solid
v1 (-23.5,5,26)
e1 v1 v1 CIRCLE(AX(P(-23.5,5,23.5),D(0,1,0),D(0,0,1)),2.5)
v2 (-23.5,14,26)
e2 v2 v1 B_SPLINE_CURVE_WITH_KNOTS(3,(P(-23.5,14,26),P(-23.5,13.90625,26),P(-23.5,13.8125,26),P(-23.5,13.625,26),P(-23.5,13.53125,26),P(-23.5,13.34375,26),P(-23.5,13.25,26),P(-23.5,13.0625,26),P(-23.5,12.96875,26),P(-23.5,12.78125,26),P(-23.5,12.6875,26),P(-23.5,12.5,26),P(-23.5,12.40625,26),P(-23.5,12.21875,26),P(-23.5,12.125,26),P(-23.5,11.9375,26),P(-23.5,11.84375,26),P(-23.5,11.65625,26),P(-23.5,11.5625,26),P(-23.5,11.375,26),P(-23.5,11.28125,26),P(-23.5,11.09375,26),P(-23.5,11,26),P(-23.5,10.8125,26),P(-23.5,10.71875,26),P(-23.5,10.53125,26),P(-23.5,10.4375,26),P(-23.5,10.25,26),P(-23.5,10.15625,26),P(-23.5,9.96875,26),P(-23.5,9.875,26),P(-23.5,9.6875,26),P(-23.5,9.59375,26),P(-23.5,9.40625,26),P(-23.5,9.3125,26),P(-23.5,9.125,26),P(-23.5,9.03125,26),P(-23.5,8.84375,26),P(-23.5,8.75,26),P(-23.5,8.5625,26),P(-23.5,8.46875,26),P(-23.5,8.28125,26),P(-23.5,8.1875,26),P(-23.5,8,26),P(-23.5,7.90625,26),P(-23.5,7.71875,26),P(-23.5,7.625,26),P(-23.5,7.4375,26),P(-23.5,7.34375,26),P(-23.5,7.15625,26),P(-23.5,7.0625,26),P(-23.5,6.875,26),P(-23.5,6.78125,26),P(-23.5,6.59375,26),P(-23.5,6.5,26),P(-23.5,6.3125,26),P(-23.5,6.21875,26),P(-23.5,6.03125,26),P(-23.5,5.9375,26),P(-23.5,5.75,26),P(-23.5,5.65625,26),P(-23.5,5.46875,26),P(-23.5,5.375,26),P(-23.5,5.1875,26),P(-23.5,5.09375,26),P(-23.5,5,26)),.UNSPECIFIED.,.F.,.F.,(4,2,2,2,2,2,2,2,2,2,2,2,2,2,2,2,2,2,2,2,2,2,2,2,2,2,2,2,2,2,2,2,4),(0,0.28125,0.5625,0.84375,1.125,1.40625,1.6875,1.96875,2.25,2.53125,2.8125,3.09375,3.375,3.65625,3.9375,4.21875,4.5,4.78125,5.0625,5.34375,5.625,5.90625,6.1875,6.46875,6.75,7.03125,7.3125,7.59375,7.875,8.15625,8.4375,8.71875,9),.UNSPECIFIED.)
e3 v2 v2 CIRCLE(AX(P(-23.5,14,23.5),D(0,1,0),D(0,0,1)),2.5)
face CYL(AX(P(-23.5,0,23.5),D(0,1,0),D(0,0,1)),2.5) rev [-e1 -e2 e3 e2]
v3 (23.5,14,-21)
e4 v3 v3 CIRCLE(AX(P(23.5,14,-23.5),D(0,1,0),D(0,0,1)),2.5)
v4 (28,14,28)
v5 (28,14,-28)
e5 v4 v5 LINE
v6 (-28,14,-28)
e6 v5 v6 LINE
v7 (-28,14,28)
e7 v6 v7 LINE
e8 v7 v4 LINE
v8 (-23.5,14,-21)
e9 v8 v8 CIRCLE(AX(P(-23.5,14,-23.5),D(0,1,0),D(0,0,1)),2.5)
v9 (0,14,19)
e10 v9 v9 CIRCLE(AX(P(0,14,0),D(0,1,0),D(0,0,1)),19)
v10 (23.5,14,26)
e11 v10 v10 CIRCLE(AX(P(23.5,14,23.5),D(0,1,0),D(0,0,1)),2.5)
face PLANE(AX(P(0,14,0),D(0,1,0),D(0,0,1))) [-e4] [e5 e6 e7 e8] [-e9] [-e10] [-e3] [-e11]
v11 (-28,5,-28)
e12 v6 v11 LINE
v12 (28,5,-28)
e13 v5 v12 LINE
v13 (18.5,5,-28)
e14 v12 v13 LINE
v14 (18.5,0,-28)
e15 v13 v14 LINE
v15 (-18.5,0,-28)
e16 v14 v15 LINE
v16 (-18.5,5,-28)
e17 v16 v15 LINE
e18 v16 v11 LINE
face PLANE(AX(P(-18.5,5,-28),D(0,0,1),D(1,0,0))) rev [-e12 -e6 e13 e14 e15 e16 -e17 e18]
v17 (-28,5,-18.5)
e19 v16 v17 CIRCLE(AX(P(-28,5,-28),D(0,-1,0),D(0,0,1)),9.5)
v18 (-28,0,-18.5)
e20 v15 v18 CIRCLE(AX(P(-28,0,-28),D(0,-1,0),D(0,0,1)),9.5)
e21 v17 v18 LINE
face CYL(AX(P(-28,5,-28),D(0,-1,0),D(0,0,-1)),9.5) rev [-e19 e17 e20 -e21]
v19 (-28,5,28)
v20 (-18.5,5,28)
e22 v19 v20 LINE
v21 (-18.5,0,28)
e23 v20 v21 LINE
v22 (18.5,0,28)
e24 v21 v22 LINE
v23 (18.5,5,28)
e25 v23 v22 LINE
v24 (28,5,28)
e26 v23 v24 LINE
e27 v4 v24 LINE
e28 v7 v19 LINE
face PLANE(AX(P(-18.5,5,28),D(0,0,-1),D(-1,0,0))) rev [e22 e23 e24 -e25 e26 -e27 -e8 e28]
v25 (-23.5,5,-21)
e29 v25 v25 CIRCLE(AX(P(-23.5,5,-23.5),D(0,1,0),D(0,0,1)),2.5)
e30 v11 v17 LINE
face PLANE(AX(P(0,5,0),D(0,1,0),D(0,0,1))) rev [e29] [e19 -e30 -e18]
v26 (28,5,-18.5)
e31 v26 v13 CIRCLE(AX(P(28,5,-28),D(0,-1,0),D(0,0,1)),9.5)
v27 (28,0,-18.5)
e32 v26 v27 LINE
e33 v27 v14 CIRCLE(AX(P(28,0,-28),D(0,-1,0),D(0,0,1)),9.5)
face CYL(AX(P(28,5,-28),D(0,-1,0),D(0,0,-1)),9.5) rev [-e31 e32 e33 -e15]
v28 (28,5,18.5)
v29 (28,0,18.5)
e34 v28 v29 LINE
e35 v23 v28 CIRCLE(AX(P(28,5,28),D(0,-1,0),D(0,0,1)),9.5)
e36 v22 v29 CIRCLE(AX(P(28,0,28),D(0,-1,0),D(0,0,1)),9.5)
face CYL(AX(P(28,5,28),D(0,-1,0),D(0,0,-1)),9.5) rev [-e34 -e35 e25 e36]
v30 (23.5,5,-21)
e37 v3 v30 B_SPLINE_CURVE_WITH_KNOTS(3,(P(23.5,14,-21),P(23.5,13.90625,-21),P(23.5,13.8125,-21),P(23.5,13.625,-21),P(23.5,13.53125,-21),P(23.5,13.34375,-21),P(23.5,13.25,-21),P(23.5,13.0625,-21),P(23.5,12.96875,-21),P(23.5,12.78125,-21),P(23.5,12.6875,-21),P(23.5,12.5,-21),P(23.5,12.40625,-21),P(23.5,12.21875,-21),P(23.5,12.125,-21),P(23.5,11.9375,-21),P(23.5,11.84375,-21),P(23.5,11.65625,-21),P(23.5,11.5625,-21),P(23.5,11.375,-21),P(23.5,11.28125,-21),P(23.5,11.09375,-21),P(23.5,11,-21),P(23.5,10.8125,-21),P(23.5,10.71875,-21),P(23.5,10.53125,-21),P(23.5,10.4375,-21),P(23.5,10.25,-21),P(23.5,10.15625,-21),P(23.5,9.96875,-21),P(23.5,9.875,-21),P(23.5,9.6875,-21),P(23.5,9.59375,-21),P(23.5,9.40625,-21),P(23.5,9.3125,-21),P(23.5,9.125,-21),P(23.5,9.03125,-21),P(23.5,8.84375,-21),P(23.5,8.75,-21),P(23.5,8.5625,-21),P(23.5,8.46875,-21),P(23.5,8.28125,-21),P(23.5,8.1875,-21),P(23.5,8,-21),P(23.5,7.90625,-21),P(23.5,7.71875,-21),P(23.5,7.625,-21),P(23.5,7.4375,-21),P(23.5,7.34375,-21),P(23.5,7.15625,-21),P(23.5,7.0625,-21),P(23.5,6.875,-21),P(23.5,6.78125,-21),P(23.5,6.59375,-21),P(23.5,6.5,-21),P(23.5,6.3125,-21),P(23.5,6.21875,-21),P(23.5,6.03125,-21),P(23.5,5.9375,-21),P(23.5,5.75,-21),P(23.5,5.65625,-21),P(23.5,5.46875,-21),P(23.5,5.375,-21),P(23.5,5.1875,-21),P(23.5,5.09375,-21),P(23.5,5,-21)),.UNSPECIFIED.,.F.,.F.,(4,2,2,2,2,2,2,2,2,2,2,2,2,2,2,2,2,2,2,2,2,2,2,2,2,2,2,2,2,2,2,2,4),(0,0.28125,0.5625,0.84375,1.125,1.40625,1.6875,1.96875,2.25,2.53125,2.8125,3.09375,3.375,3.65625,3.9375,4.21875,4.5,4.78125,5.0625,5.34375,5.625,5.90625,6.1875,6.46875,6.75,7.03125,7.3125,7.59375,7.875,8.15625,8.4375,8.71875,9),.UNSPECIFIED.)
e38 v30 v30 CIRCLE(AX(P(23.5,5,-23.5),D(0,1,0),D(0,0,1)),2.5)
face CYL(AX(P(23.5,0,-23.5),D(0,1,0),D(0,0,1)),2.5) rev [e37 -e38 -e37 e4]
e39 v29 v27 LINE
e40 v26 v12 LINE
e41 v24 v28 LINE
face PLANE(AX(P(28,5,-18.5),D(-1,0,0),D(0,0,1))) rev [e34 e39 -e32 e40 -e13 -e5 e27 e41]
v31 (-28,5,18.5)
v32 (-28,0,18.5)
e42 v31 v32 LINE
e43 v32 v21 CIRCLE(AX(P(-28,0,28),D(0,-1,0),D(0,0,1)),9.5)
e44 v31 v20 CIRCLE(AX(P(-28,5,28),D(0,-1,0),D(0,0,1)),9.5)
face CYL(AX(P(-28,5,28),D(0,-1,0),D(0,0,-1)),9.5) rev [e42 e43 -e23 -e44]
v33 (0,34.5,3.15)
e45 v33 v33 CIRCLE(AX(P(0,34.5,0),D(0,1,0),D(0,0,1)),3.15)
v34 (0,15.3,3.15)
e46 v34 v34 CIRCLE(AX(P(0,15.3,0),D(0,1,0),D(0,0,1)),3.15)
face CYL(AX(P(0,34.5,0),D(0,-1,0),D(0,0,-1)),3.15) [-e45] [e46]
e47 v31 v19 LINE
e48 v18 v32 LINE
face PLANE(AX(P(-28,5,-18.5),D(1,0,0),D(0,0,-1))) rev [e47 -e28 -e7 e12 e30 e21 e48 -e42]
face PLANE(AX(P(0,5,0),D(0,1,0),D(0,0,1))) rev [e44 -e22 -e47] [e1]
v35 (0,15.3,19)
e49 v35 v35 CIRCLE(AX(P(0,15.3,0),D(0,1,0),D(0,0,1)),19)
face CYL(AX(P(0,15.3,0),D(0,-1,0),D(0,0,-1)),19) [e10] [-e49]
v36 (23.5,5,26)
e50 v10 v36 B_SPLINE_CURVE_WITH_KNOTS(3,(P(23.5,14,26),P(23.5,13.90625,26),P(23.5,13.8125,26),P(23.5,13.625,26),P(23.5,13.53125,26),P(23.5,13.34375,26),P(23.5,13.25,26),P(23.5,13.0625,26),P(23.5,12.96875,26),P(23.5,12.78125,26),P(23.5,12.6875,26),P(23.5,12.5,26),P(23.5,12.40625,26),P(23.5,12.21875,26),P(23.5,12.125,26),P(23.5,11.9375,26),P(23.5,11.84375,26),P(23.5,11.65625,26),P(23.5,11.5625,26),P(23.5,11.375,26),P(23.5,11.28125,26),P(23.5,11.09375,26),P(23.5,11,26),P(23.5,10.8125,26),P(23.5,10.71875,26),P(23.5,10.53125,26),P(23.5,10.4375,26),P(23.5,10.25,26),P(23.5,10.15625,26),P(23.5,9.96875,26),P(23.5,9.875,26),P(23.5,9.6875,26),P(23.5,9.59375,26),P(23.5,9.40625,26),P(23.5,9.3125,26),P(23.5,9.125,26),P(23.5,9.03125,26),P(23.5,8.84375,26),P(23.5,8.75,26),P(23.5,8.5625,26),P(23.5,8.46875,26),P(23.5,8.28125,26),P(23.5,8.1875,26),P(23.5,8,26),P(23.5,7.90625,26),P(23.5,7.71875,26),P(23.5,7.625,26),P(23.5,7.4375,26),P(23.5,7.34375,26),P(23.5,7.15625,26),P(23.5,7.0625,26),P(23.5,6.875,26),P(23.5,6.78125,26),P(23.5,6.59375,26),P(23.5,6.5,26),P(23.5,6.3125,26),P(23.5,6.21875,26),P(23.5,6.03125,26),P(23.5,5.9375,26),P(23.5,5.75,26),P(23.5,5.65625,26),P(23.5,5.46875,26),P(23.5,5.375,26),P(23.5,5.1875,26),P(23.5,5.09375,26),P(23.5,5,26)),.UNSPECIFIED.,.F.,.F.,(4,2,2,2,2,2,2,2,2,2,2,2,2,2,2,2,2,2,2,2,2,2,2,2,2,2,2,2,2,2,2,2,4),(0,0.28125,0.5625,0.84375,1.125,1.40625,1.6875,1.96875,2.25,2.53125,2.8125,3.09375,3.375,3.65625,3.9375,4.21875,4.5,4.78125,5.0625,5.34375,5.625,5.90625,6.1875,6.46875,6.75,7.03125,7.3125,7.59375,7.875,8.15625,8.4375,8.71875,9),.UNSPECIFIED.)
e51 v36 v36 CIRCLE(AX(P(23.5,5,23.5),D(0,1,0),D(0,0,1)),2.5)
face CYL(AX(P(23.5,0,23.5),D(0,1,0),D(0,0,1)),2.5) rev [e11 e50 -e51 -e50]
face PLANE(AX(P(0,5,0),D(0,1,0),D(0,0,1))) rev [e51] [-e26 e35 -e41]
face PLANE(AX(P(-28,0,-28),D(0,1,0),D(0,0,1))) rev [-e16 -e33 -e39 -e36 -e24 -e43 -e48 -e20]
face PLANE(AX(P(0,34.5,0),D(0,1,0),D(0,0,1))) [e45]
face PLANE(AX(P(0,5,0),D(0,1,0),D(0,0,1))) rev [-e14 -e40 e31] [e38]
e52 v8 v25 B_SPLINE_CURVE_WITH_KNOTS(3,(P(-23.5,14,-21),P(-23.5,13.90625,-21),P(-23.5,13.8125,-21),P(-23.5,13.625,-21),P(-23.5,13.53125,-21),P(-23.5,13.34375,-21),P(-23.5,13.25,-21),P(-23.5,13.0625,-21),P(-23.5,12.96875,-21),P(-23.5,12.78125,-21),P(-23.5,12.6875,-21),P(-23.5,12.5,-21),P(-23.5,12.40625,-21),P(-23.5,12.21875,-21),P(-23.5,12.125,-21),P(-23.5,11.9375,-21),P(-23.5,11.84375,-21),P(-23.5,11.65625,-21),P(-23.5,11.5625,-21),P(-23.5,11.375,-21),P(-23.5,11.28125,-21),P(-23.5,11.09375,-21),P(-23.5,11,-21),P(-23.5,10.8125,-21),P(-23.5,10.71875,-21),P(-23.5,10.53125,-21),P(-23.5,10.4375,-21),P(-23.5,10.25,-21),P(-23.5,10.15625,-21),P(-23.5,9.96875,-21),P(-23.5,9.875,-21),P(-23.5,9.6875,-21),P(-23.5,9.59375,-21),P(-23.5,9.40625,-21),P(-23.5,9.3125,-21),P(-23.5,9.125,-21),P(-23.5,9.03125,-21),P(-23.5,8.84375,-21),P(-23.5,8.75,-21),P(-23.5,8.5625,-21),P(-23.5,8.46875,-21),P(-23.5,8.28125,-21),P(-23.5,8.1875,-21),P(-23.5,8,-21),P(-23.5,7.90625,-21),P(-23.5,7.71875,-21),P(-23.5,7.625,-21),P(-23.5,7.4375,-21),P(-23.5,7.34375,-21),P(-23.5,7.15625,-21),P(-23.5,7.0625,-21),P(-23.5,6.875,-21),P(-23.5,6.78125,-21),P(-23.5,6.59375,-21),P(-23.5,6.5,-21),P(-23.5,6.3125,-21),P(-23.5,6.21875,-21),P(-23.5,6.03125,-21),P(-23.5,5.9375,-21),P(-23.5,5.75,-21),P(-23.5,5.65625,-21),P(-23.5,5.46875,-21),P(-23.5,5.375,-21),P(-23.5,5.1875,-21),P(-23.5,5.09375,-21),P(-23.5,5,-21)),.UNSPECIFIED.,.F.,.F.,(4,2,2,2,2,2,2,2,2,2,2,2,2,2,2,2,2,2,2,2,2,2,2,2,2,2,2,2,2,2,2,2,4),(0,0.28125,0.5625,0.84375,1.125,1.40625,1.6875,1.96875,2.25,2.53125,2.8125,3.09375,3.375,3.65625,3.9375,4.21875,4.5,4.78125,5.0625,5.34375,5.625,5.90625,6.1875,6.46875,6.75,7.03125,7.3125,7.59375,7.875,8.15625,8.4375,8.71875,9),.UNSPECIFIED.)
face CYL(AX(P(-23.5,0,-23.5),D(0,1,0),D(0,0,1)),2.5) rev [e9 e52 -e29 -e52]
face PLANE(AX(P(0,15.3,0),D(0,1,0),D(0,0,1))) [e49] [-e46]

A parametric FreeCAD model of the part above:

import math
import FreeCAD as App
import Part
import Sketcher


def add_polygon(sketch, points):
    """Adds a closed chain of lines whose ends are joined by coincident constraints."""
    first, n = sketch.GeometryCount, len(points)
    for a, b in zip(points, points[1:] + points[:1]):
        sketch.addGeometry(Part.LineSegment(App.Vector(*a, 0), App.Vector(*b, 0)), False)
    for i in range(n):
        sketch.addConstraint(Sketcher.Constraint("Coincident", first + i, 2, first + (i + 1) % n, 1))

doc = App.newDocument("Part")
body = doc.addObject("PartDesign::Body", "Body")

# Sketch on XZ plane
sketch1 = body.newObject("Sketcher::SketchObject", "Sketch")
sketch1.AttachmentSupport = (doc.getObject("XZ_Plane"), [""])
sketch1.MapMode = "FlatFace"
sketch1.addGeometry([
    Part.LineSegment(App.Vector(18, -28, 0), App.Vector(-18, -28, 0)),  # 0
    Part.ArcOfCircle(Part.Circle(App.Vector(-28, -28, 0), App.Vector(0, 0, 1), 10), math.radians(0), math.radians(90)),  # 1
    Part.LineSegment(App.Vector(-28, -18, 0), App.Vector(-28, 18, 0)),  # 2
    Part.ArcOfCircle(Part.Circle(App.Vector(-28, 28, 0), App.Vector(0, 0, 1), 10), math.radians(-90), math.radians(0)),  # 3
    Part.LineSegment(App.Vector(-18, 28, 0), App.Vector(18, 28, 0)),  # 4
    Part.ArcOfCircle(Part.Circle(App.Vector(28, 28, 0), App.Vector(0, 0, 1), 10), math.radians(-180), math.radians(-90)),  # 5
    Part.LineSegment(App.Vector(28, 18, 0), App.Vector(28, -18, 0)),  # 6
    Part.ArcOfCircle(Part.Circle(App.Vector(28, -28, 0), App.Vector(0, 0, 1), 10), math.radians(90), math.radians(180)),  # 7
], False)
sketch1.addConstraint([
    Sketcher.Constraint("Coincident", 0, 2, 1, 1),
    Sketcher.Constraint("Coincident", 1, 2, 2, 1),
    Sketcher.Constraint("Coincident", 2, 2, 3, 1),
    Sketcher.Constraint("Coincident", 3, 2, 4, 1),
    Sketcher.Constraint("Coincident", 4, 2, 5, 1),
    Sketcher.Constraint("Coincident", 5, 2, 6, 1),
    Sketcher.Constraint("Coincident", 6, 2, 7, 1),
    Sketcher.Constraint("Coincident", 7, 2, 0, 1),
    Sketcher.Constraint("Horizontal", 0),
    Sketcher.Constraint("Vertical", 2),
    Sketcher.Constraint("Horizontal", 4),
    Sketcher.Constraint("Vertical", 6),
    Sketcher.Constraint("Equal", 1, 3),
    Sketcher.Constraint("Equal", 3, 5),
    Sketcher.Constraint("Equal", 5, 7),
    Sketcher.Constraint("Symmetric", 1, 3, 5, 3, -1, 1),
    Sketcher.Constraint("Symmetric", 3, 3, 7, 3, -1, 1),
    Sketcher.Constraint("Symmetric", 3, 3, 5, 3, -2),
    Sketcher.Constraint("Horizontal", 7, 3, 0, 2),
    Sketcher.Constraint("Horizontal", 5, 3, 3, 2),
    Sketcher.Constraint("Vertical", 3, 3, 1, 2),
    Sketcher.Constraint("Vertical", 7, 3, 5, 2),
    Sketcher.Constraint("Equal", 4, 2),
    Sketcher.Constraint("Radius", 1, 9.5),
    Sketcher.Constraint("DistanceX", 0, 2, 0, 1, 37.0),
])
pad1 = body.newObject("PartDesign::Pad", "Pad")
pad1.Profile = sketch1
pad1.Length = 5
pad1.Reversed = True

# Sketch on XZ plane
sketch2 = body.newObject("Sketcher::SketchObject", "Sketch001")
sketch2.AttachmentSupport = (doc.getObject("XZ_Plane"), [""])
sketch2.MapMode = "FlatFace"
sketch2.AttachmentOffset = App.Placement(App.Vector(0, 0, -5), App.Rotation())
add_polygon(sketch2, [(-28, -28), (-28, 28), (28, 28), (28, -28)])  # lines 0-3
sketch2.addConstraint([
    Sketcher.Constraint("Vertical", 0),
    Sketcher.Constraint("Horizontal", 1),
    Sketcher.Constraint("Vertical", 2),
    Sketcher.Constraint("Horizontal", 3),
    Sketcher.Constraint("Symmetric", 0, 2, 2, 2, -1, 1),
    Sketcher.Constraint("Equal", 3, 0),
    Sketcher.Constraint("DistanceX", 1, 1, 1, 2, 56.0),
])
pad2 = body.newObject("PartDesign::Pad", "Pad001")
pad2.Profile = sketch2
pad2.Length = 9
pad2.Reversed = True

# Sketch on XZ plane
sketch3 = body.newObject("Sketcher::SketchObject", "Sketch002")
sketch3.AttachmentSupport = (doc.getObject("XZ_Plane"), [""])
sketch3.MapMode = "FlatFace"
sketch3.AttachmentOffset = App.Placement(App.Vector(0, 0, -14), App.Rotation())
sketch3.addGeometry(Part.Circle(App.Vector(0, 0, 0), App.Vector(0, 0, 1), 19), False)
sketch3.addConstraint([
    Sketcher.Constraint("Coincident", 0, 3, -1, 1),
    Sketcher.Constraint("Diameter", 0, 38.0),
])
pad3 = body.newObject("PartDesign::Pad", "Pad002")
pad3.Profile = sketch3
pad3.Length = 1.3
pad3.Reversed = True

# Sketch on XZ plane
sketch4 = body.newObject("Sketcher::SketchObject", "Sketch003")
sketch4.AttachmentSupport = (doc.getObject("XZ_Plane"), [""])
sketch4.MapMode = "FlatFace"
sketch4.AttachmentOffset = App.Placement(App.Vector(0, 0, -14), App.Rotation())
sketch4.addGeometry([
    Part.Circle(App.Vector(-23.5, -23.5, 0), App.Vector(0, 0, 1), 2.5),
    Part.Circle(App.Vector(23.5, -23.5, 0), App.Vector(0, 0, 1), 2.5),
    Part.Circle(App.Vector(23.5, 23.5, 0), App.Vector(0, 0, 1), 2.5),
    Part.Circle(App.Vector(-23.5, 23.5, 0), App.Vector(0, 0, 1), 2.5),
], False)
sketch4.addConstraint([
    Sketcher.Constraint("Equal", 0, 1),
    Sketcher.Constraint("Equal", 1, 2),
    Sketcher.Constraint("Equal", 2, 3),
    Sketcher.Constraint("Symmetric", 0, 3, 2, 3, -1, 1),
    Sketcher.Constraint("Symmetric", 1, 3, 3, 3, -1, 1),
    Sketcher.Constraint("Symmetric", 0, 3, 1, 3, -2),
    Sketcher.Constraint("Diameter", 0, 5.0),
    Sketcher.Constraint("DistanceX", 0, 3, 1, 3, 47.0),
    Sketcher.Constraint("DistanceY", 1, 3, 2, 3, 47.0),
])
pocket1 = body.newObject("PartDesign::Pocket", "Pocket")
pocket1.Profile = sketch4
pocket1.Type = "ThroughAll"
pocket1.Reversed = True

# Sketch on XZ plane
sketch5 = body.newObject("Sketcher::SketchObject", "Sketch004")
sketch5.AttachmentSupport = (doc.getObject("XZ_Plane"), [""])
sketch5.MapMode = "FlatFace"
sketch5.AttachmentOffset = App.Placement(App.Vector(0, 0, -15.3), App.Rotation())
sketch5.addGeometry(Part.Circle(App.Vector(0, 0, 0), App.Vector(0, 0, 1), 3.1), False)
sketch5.addConstraint([
    Sketcher.Constraint("Coincident", 0, 3, -1, 1),
    Sketcher.Constraint("Diameter", 0, 6.3),
])
pad4 = body.newObject("PartDesign::Pad", "Pad003")
pad4.Profile = sketch5
pad4.Length = 19.2
pad4.Reversed = True

doc.recompute()
